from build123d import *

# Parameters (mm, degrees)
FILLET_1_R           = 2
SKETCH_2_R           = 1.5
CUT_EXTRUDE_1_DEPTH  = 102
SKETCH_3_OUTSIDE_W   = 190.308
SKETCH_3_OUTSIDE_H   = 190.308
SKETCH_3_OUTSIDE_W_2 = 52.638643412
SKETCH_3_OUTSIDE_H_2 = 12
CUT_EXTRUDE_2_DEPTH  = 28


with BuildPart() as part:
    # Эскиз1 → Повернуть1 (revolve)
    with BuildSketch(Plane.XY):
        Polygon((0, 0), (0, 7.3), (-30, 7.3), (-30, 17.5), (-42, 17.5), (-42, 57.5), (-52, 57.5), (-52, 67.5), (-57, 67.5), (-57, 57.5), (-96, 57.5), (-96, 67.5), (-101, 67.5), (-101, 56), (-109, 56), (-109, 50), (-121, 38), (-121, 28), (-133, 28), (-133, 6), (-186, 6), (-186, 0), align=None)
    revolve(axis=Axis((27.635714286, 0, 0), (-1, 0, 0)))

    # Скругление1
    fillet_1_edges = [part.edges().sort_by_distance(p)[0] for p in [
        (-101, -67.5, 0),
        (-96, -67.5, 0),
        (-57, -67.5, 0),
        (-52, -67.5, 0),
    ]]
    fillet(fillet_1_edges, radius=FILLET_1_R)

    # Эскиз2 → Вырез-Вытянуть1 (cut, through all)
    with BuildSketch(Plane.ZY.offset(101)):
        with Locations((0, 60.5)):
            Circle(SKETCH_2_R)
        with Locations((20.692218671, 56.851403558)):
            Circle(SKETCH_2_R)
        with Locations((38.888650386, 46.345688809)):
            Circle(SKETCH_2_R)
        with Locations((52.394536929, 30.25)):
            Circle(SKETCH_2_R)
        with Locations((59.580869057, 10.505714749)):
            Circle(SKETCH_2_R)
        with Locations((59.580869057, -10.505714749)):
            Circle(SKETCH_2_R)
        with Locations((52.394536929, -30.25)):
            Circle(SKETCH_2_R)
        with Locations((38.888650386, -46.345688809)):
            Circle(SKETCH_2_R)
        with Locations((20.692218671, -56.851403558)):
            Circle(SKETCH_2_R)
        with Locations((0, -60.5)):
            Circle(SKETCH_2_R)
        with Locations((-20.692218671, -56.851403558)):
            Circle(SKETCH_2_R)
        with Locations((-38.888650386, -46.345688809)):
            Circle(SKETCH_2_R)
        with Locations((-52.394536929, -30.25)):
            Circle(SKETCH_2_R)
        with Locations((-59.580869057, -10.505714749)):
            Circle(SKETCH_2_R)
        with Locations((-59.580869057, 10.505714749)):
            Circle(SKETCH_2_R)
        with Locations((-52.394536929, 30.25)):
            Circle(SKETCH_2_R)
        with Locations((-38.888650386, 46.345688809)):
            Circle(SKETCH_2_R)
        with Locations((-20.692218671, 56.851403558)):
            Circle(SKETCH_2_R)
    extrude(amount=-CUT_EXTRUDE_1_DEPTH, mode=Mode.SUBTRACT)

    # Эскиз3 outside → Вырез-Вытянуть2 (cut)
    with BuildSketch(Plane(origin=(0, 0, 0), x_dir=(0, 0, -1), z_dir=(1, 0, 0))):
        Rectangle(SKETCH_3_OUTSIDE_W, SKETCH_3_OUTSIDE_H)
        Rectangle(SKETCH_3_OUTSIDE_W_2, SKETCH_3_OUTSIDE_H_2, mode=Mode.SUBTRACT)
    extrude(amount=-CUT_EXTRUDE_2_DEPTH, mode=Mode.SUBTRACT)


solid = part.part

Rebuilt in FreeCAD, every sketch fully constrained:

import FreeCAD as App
import Part
import Sketcher
from FreeCAD import Vector
Q = App.Units.Quantity


def edges_at(feature, points):
    """Names of the edges that pass closest to the given points."""
    edges = feature.Shape.Edges
    near = lambda p: min(range(len(edges)), key=lambda i: edges[i].distToShape(Part.Vertex(*p))[0])
    return sorted({f"Edge{near(p) + 1}" for p in points})


def add_polygon(sketch, points):
    """Adds a closed chain of lines whose ends are joined by coincident constraints."""
    first, n = sketch.GeometryCount, len(points)
    for a, b in zip(points, points[1:] + points[:1]):
        sketch.addGeometry(Part.LineSegment(App.Vector(*a, 0), App.Vector(*b, 0)), False)
    for i in range(n):
        sketch.addConstraint(Sketcher.Constraint("Coincident", first + i, 2, first + (i + 1) % n, 1))

doc = App.newDocument("Part")
params = doc.addObject("Spreadsheet::Sheet", "Params")
for row, (alias, value) in enumerate([
    ("sketch1_width", "30 mm"),
    ("sketch1_width2", "12 mm"),
    ("sketch1_width3", "10 mm"),
    ("sketch1_width4", "5 mm"),
    ("sketch1_width5", "39 mm"),
    ("revolution_angle", "360 deg"),
    ("fillet_radius", "2 mm"),
    ("sketch2_diameter", "3 mm"),
    ("sketch3_width", "12 mm"),
    ("pocket2_length", "28 mm"),
], start=1):
    params.set(f"A{row}", alias)
    params.set(f"B{row}", "=" + value)
    params.setAlias(f"B{row}", alias)

body = doc.addObject("PartDesign::Body", "Body")

# Sketch on XY plane
sketch1 = doc.addObject("Sketcher::SketchObject", "Sketch")
body.addObject(sketch1)
sketch1.AttachmentSupport = (doc.XY_Plane, [""])
sketch1.MapMode = "FlatFace"
add_polygon(sketch1, [(0, 0), (0, 7), (-30, 7), (-30, 18), (-42, 18), (-42, 58), (-52, 58), (-52, 68), (-57, 68), (-57, 58), (-96, 58), (-96, 68), (-101, 68), (-101, 56), (-109, 56), (-109, 50), (-121, 38), (-121, 28), (-133, 28), (-133, 6), (-186, 6), (-186, 0)])  # lines 0-21
sketch1.addConstraint([
    Sketcher.Constraint("Vertical", 0),
    Sketcher.Constraint("Horizontal", 1),
    Sketcher.Constraint("Vertical", 2),
    Sketcher.Constraint("Horizontal", 3),
    Sketcher.Constraint("Vertical", 4),
    Sketcher.Constraint("Horizontal", 5),
    Sketcher.Constraint("Vertical", 6),
    Sketcher.Constraint("Horizontal", 7),
    Sketcher.Constraint("Vertical", 8),
    Sketcher.Constraint("Horizontal", 9),
    Sketcher.Constraint("Vertical", 10),
    Sketcher.Constraint("Horizontal", 11),
    Sketcher.Constraint("Vertical", 12),
    Sketcher.Constraint("Horizontal", 13),
    Sketcher.Constraint("Vertical", 14),
    Sketcher.Constraint("Vertical", 16),
    Sketcher.Constraint("Horizontal", 17),
    Sketcher.Constraint("Vertical", 18),
    Sketcher.Constraint("Horizontal", 19),
    Sketcher.Constraint("Vertical", 20),
    Sketcher.Constraint("Horizontal", 21),
    Sketcher.Constraint("Coincident", 21, 2, -1, 1),
    Sketcher.Constraint("Horizontal", 5, 2, 8, 2),
    Sketcher.Constraint("Horizontal", 7, 2, 10, 2),
    Sketcher.Constraint("Equal", 7, 11),
    Sketcher.Constraint("Equal", 3, 17),
    Sketcher.Constraint("Equal", 5, 6),
    Sketcher.Constraint("Equal", 10, 16),
    Sketcher.Constraint("Equal", 14, 20),
    Sketcher.Constraint("DistanceX", 1, 2, 1, 1, 30.0),
    Sketcher.Constraint("DistanceX", 3, 2, 3, 1, 12.0),
    Sketcher.Constraint("DistanceX", 5, 2, 5, 1, 10.0),
    Sketcher.Constraint("DistanceX", 7, 2, 7, 1, 5.0),
    Sketcher.Constraint("DistanceX", 9, 2, 9, 1, 39.0),
    Sketcher.Constraint("DistanceX", 13, 2, 13, 1, 8.0),
    Sketcher.Constraint("DistanceX", 19, 2, 19, 1, 53.0),
    Sketcher.Constraint("DistanceX", 21, 1, 21, 2, 186.0),
    Sketcher.Constraint("DistanceY", 4, 1, 4, 2, 40.0),
    Sketcher.Constraint("DistanceY", 14, 2, 14, 1, 6.0),
    Sketcher.Constraint("DistanceY", 18, 2, 18, 1, 22.0),
    Sketcher.Constraint("Angle", 15, Q("-135 deg")),
    Sketcher.Constraint("DistanceY", 0, 1, 0, 2, 7.3),
    Sketcher.Constraint("DistanceY", 2, 1, 2, 2, 10.2),
])
sketch1.setExpression("Constraints[51]", "Params.sketch1_width")
sketch1.setExpression("Constraints[52]", "Params.sketch1_width2")
sketch1.setExpression("Constraints[53]", "Params.sketch1_width3")
sketch1.setExpression("Constraints[54]", "Params.sketch1_width4")
sketch1.setExpression("Constraints[55]", "Params.sketch1_width5")
revolution = doc.addObject("PartDesign::Revolution", "Revolution")
body.addObject(revolution)
revolution.Profile = sketch1
revolution.ReferenceAxis = (sketch1, ["H_Axis"])
revolution.setExpression("Angle", "Params.revolution_angle")
doc.recompute()

fillet = doc.addObject("PartDesign::Fillet", "Fillet")
body.addObject(fillet)
fillet.Base = (revolution, edges_at(revolution, [
    (-101, -67.5, 0),
    (-96, -67.5, 0),
    (-57, -67.5, 0),
    (-52, -67.5, 0),
]))
fillet.setExpression("Radius", "Params.fillet_radius")

# Sketch on YZ plane
sketch2 = doc.addObject("Sketcher::SketchObject", "Sketch001")
body.addObject(sketch2)
sketch2.AttachmentSupport = (doc.YZ_Plane, [""])
sketch2.MapMode = "FlatFace"
sketch2.AttachmentOffset = App.Placement(Vector(0, 0, -101), App.Rotation())
sketch2.addGeometry([
    Part.Circle(Vector(60.5, 0, 0), Vector(0, 0, 1), 1.5),  # 0
    Part.Circle(Vector(56.9, 20.7, 0), Vector(0, 0, 1), 1.5),  # 1
    Part.Circle(Vector(46.3, 38.9, 0), Vector(0, 0, 1), 1.5),  # 2
    Part.Circle(Vector(30.2, 52.4, 0), Vector(0, 0, 1), 1.5),  # 3
    Part.Circle(Vector(10.5, 59.6, 0), Vector(0, 0, 1), 1.5),  # 4
    Part.Circle(Vector(-10.5, 59.6, 0), Vector(0, 0, 1), 1.5),  # 5
    Part.Circle(Vector(-30.2, 52.4, 0), Vector(0, 0, 1), 1.5),  # 6
    Part.Circle(Vector(-46.3, 38.9, 0), Vector(0, 0, 1), 1.5),  # 7
    Part.Circle(Vector(-56.9, 20.7, 0), Vector(0, 0, 1), 1.5),  # 8
    Part.Circle(Vector(-60.5, 0, 0), Vector(0, 0, 1), 1.5),  # 9
    Part.Circle(Vector(-56.9, -20.7, 0), Vector(0, 0, 1), 1.5),  # 10
    Part.Circle(Vector(-46.3, -38.9, 0), Vector(0, 0, 1), 1.5),  # 11
    Part.Circle(Vector(-30.2, -52.4, 0), Vector(0, 0, 1), 1.5),  # 12
    Part.Circle(Vector(-10.5, -59.6, 0), Vector(0, 0, 1), 1.5),  # 13
    Part.Circle(Vector(10.5, -59.6, 0), Vector(0, 0, 1), 1.5),  # 14
    Part.Circle(Vector(30.2, -52.4, 0), Vector(0, 0, 1), 1.5),  # 15
    Part.Circle(Vector(46.3, -38.9, 0), Vector(0, 0, 1), 1.5),  # 16
    Part.Circle(Vector(56.9, -20.7, 0), Vector(0, 0, 1), 1.5),  # 17
], False)
sketch2.addConstraint([
    Sketcher.Constraint("Equal", 0, 1),
    Sketcher.Constraint("Equal", 1, 2),
    Sketcher.Constraint("Equal", 2, 3),
    Sketcher.Constraint("Equal", 3, 4),
    Sketcher.Constraint("Equal", 4, 5),
    Sketcher.Constraint("Equal", 5, 6),
    Sketcher.Constraint("Equal", 6, 7),
    Sketcher.Constraint("Equal", 7, 8),
    Sketcher.Constraint("Equal", 8, 9),
    Sketcher.Constraint("Equal", 9, 10),
    Sketcher.Constraint("Equal", 10, 11),
    Sketcher.Constraint("Equal", 11, 12),
    Sketcher.Constraint("Equal", 12, 13),
    Sketcher.Constraint("Equal", 13, 14),
    Sketcher.Constraint("Equal", 14, 15),
    Sketcher.Constraint("Equal", 15, 16),
    Sketcher.Constraint("Equal", 16, 17),
    Sketcher.Constraint("Symmetric", 0, 3, 9, 3, -1, 1),
    Sketcher.Constraint("Symmetric", 1, 3, 10, 3, -1, 1),
    Sketcher.Constraint("Symmetric", 2, 3, 11, 3, -1, 1),
    Sketcher.Constraint("Symmetric", 3, 3, 12, 3, -1, 1),
    Sketcher.Constraint("Symmetric", 4, 3, 13, 3, -1, 1),
    Sketcher.Constraint("Symmetric", 5, 3, 14, 3, -1, 1),
    Sketcher.Constraint("Symmetric", 6, 3, 15, 3, -1, 1),
    Sketcher.Constraint("Symmetric", 7, 3, 16, 3, -1, 1),
    Sketcher.Constraint("Symmetric", 8, 3, 17, 3, -1, 1),
    Sketcher.Constraint("Symmetric", 4, 3, 5, 3, -2),
    Sketcher.Constraint("Symmetric", 3, 3, 6, 3, -2),
    Sketcher.Constraint("Symmetric", 2, 3, 7, 3, -2),
    Sketcher.Constraint("Symmetric", 1, 3, 8, 3, -2),
    Sketcher.Constraint("PointOnObject", 0, 3, -1),
    Sketcher.Constraint("Diameter", 0, 3.0),
    Sketcher.Constraint("DistanceX", -1, 1, 0, 3, 60.5),
    Sketcher.Constraint("DistanceX", 6, 3, 3, 3, 60.5),
    Sketcher.Constraint("DistanceY", 11, 3, 7, 3, 77.777301),
    Sketcher.Constraint("DistanceY", -1, 1, 1, 3, 20.692219),
    Sketcher.Constraint("DistanceX", -1, 1, 2, 3, 46.345689),
    Sketcher.Constraint("DistanceY", -1, 1, 4, 3, 59.580869),
    Sketcher.Constraint("DistanceY", 1, 3, 3, 3, 31.702318),
    Sketcher.Constraint("DistanceX", 4, 3, 1, 3, 46.345689),
    Sketcher.Constraint("DistanceX", 5, 3, 4, 3, 21.011429),
])
sketch2.setExpression("Constraints[31]", "Params.sketch2_diameter")
pocket1 = doc.addObject("PartDesign::Pocket", "Pocket")
body.addObject(pocket1)
pocket1.Profile = sketch2
pocket1.Type = "ThroughAll"
pocket1.Reversed = True

# Sketch on YZ plane
sketch3 = doc.addObject("Sketcher::SketchObject", "Sketch002")
body.addObject(sketch3)
sketch3.AttachmentSupport = (doc.YZ_Plane, [""])
sketch3.MapMode = "FlatFace"
add_polygon(sketch3, [(95, 95), (-95, 95), (-95, -95), (95, -95)])  # lines 0-3
add_polygon(sketch3, [(-6, -26), (-6, 26), (6, 26), (6, -26)])  # lines 4-7
sketch3.addConstraint([
    Sketcher.Constraint("Horizontal", 0),
    Sketcher.Constraint("Vertical", 1),
    Sketcher.Constraint("Horizontal", 2),
    Sketcher.Constraint("Vertical", 3),
    Sketcher.Constraint("Vertical", 4),
    Sketcher.Constraint("Horizontal", 5),
    Sketcher.Constraint("Vertical", 6),
    Sketcher.Constraint("Horizontal", 7),
    Sketcher.Constraint("Symmetric", 0, 2, 2, 2, -1, 1),
    Sketcher.Constraint("Symmetric", 4, 2, 6, 2, -1, 1),
    Sketcher.Constraint("Equal", 2, 1),
    Sketcher.Constraint("DistanceX", 5, 1, 5, 2, 12.0),
    Sketcher.Constraint("DistanceX", 0, 2, 0, 1, 190.308),
    Sketcher.Constraint("DistanceY", 4, 1, 4, 2, 52.638643),
])
sketch3.setExpression("Constraints[19]", "Params.sketch3_width")
pocket2 = doc.addObject("PartDesign::Pocket", "Pocket001")
body.addObject(pocket2)
pocket2.Profile = sketch3
pocket2.setExpression("Length", "Params.pocket2_length")

doc.recompute()
